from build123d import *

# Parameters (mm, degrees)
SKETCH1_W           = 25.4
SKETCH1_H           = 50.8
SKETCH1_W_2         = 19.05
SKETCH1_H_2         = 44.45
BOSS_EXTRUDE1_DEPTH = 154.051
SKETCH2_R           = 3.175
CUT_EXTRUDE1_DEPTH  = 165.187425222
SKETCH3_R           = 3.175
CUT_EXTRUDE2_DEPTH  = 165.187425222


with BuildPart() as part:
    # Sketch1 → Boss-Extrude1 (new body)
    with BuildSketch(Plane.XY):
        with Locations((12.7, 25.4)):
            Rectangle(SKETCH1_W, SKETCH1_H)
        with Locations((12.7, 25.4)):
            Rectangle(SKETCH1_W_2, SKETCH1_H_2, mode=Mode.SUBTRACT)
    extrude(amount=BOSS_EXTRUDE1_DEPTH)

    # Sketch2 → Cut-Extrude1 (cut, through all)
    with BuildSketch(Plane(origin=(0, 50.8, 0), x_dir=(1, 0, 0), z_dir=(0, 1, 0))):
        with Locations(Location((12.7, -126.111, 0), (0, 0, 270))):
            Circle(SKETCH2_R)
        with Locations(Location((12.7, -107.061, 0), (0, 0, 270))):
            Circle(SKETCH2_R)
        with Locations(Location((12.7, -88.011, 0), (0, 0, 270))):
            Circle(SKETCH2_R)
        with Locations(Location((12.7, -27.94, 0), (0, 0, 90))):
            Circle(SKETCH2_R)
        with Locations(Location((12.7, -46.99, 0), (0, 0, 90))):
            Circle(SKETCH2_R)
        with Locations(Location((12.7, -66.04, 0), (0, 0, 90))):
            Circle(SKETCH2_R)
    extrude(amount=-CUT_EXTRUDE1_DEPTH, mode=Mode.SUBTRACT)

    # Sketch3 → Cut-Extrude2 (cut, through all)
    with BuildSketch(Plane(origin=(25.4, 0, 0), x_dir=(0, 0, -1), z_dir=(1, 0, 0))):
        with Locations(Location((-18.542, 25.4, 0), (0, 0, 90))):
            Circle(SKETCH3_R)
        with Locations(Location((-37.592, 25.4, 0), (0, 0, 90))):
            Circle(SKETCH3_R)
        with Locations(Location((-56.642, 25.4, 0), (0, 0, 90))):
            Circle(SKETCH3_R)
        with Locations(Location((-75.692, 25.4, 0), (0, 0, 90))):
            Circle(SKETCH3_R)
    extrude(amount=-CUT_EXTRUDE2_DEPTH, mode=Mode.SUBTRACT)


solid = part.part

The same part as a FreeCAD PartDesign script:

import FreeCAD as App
import Part
import Sketcher

V = App.Vector
Q = App.Units.Quantity

doc = App.newDocument("Part")
body = doc.addObject("PartDesign::Body", "Body")

# Sketch on XY plane
sketch1 = body.newObject("Sketcher::SketchObject", "Sketch")
sketch1.AttachmentSupport = (doc.getObject("XY_Plane"), [""])
sketch1.MapMode = "FlatFace"
sketch1.addGeometry(Part.LineSegment(V(0, 50.8, 0), V(0, 0, 0)), False)
sketch1.addGeometry(Part.LineSegment(V(0, 0, 0), V(25.4, 0, 0)), False)
sketch1.addGeometry(Part.LineSegment(V(25.4, 0, 0), V(25.4, 50.8, 0)), False)
sketch1.addGeometry(Part.LineSegment(V(25.4, 50.8, 0), V(0, 50.8, 0)), False)
sketch1.addGeometry(Part.LineSegment(V(22.225, 3.175, 0), V(3.175, 3.175, 0)), False)
sketch1.addGeometry(Part.LineSegment(V(3.175, 3.175, 0), V(3.175, 47.625, 0)), False)
sketch1.addGeometry(Part.LineSegment(V(3.175, 47.625, 0), V(22.225, 47.625, 0)), False)
sketch1.addGeometry(Part.LineSegment(V(22.225, 47.625, 0), V(22.225, 3.175, 0)), False)
sketch1.addConstraint(Sketcher.Constraint("Coincident", 0, 2, 1, 1))
sketch1.addConstraint(Sketcher.Constraint("Coincident", 1, 2, 2, 1))
sketch1.addConstraint(Sketcher.Constraint("Coincident", 2, 2, 3, 1))
sketch1.addConstraint(Sketcher.Constraint("Coincident", 3, 2, 0, 1))
sketch1.addConstraint(Sketcher.Constraint("Coincident", 4, 2, 5, 1))
sketch1.addConstraint(Sketcher.Constraint("Coincident", 5, 2, 6, 1))
sketch1.addConstraint(Sketcher.Constraint("Coincident", 6, 2, 7, 1))
sketch1.addConstraint(Sketcher.Constraint("Coincident", 7, 2, 4, 1))
sketch1.addConstraint(Sketcher.Constraint("Vertical", 0))
sketch1.addConstraint(Sketcher.Constraint("Horizontal", 1))
sketch1.addConstraint(Sketcher.Constraint("Vertical", 2))
sketch1.addConstraint(Sketcher.Constraint("Horizontal", 3))
sketch1.addConstraint(Sketcher.Constraint("Horizontal", 4))
sketch1.addConstraint(Sketcher.Constraint("Vertical", 5))
sketch1.addConstraint(Sketcher.Constraint("Horizontal", 6))
sketch1.addConstraint(Sketcher.Constraint("Vertical", 7))
sketch1.addConstraint(Sketcher.Constraint("Coincident", 0, 2, -1, 1))
sketch1.addConstraint(Sketcher.Constraint("DistanceX", 1, 1, 1, 2, Q("1 in")))
sketch1.addConstraint(Sketcher.Constraint("DistanceY", 0, 2, 0, 1, Q("2 in")))
sketch1.addConstraint(Sketcher.Constraint("DistanceX", 4, 2, 4, 1, Q("0.75 in")))
sketch1.addConstraint(Sketcher.Constraint("DistanceY", 5, 1, 5, 2, Q("1.75 in")))
sketch1.addConstraint(Sketcher.Constraint("DistanceX", -1, 1, 4, 2, Q("0.125 in")))
sketch1.addConstraint(Sketcher.Constraint("DistanceY", -1, 1, 4, 2, Q("0.125 in")))
pad1 = body.newObject("PartDesign::Pad", "Pad")
pad1.Profile = sketch1
pad1.Length = Q("6.065 in")

# Sketch on XZ plane
sketch2 = body.newObject("Sketcher::SketchObject", "Sketch001")
sketch2.AttachmentSupport = (doc.getObject("XZ_Plane"), [""])
sketch2.MapMode = "FlatFace"
sketch2.AttachmentOffset = App.Placement(V(0, 0, -2 * 25.4), App.Rotation())
sketch2.addGeometry(Part.Circle(V(12.7, 126.111, 0), V(0, 0, 1), 3.175), False)
sketch2.addGeometry(Part.Circle(V(12.7, 107.061, 0), V(0, 0, 1), 3.175), False)
sketch2.addGeometry(Part.Circle(V(12.7, 88.011, 0), V(0, 0, 1), 3.175), False)
sketch2.addGeometry(Part.Circle(V(12.7, 27.94, 0), V(0, 0, 1), 3.175), False)
sketch2.addGeometry(Part.Circle(V(12.7, 46.99, 0), V(0, 0, 1), 3.175), False)
sketch2.addGeometry(Part.Circle(V(12.7, 66.04, 0), V(0, 0, 1), 3.175), False)
sketch2.addConstraint(Sketcher.Constraint("Equal", 0, 1))
sketch2.addConstraint(Sketcher.Constraint("Equal", 1, 2))
sketch2.addConstraint(Sketcher.Constraint("Equal", 2, 3))
sketch2.addConstraint(Sketcher.Constraint("Equal", 3, 4))
sketch2.addConstraint(Sketcher.Constraint("Equal", 4, 5))
sketch2.addConstraint(Sketcher.Constraint("Vertical", 0, 3, 1, 3))
sketch2.addConstraint(Sketcher.Constraint("Vertical", 1, 3, 2, 3))
sketch2.addConstraint(Sketcher.Constraint("Vertical", 2, 3, 3, 3))
sketch2.addConstraint(Sketcher.Constraint("Vertical", 3, 3, 4, 3))
sketch2.addConstraint(Sketcher.Constraint("Vertical", 4, 3, 5, 3))
sketch2.addConstraint(Sketcher.Constraint("Diameter", 0, Q("0.25 in")))
sketch2.addConstraint(Sketcher.Constraint("DistanceX", -1, 1, 0, 3, Q("0.5 in")))
sketch2.addConstraint(Sketcher.Constraint("DistanceY", -1, 1, 3, 3, Q("1.1 in")))
sketch2.addConstraint(Sketcher.Constraint("DistanceY", -1, 1, 5, 3, Q("2.6 in")))
sketch2.addConstraint(Sketcher.Constraint("DistanceY", 2, 3, 0, 3, Q("1.5 in")))
sketch2.addConstraint(Sketcher.Constraint("DistanceY", -1, 1, 4, 3, Q("1.85 in")))
sketch2.addConstraint(Sketcher.Constraint("DistanceY", 1, 3, 0, 3, Q("0.75 in")))
sketch2.addConstraint(Sketcher.Constraint("DistanceY", -1, 1, 0, 3, Q("4.965 in")))
pocket1 = body.newObject("PartDesign::Pocket", "Pocket")
pocket1.Profile = sketch2
pocket1.Type = "ThroughAll"
pocket1.Reversed = True

# Sketch on YZ plane
sketch3 = body.newObject("Sketcher::SketchObject", "Sketch002")
sketch3.AttachmentSupport = (doc.getObject("YZ_Plane"), [""])
sketch3.MapMode = "FlatFace"
sketch3.AttachmentOffset = App.Placement(V(0, 0, 1 * 25.4), App.Rotation())
sketch3.addGeometry(Part.Circle(V(25.4, 18.542, 0), V(0, 0, 1), 3.175), False)
sketch3.addGeometry(Part.Circle(V(25.4, 37.592, 0), V(0, 0, 1), 3.175), False)
sketch3.addGeometry(Part.Circle(V(25.4, 56.642, 0), V(0, 0, 1), 3.175), False)
sketch3.addGeometry(Part.Circle(V(25.4, 75.692, 0), V(0, 0, 1), 3.175), False)
sketch3.addConstraint(Sketcher.Constraint("Equal", 0, 1))
sketch3.addConstraint(Sketcher.Constraint("Equal", 1, 2))
sketch3.addConstraint(Sketcher.Constraint("Equal", 2, 3))
sketch3.addConstraint(Sketcher.Constraint("Vertical", 0, 3, 1, 3))
sketch3.addConstraint(Sketcher.Constraint("Vertical", 1, 3, 2, 3))
sketch3.addConstraint(Sketcher.Constraint("Vertical", 2, 3, 3, 3))
sketch3.addConstraint(Sketcher.Constraint("Diameter", 0, Q("0.25 in")))
sketch3.addConstraint(Sketcher.Constraint("DistanceX", -1, 1, 0, 3, Q("1 in")))
sketch3.addConstraint(Sketcher.Constraint("DistanceY", 0, 3, 2, 3, Q("1.5 in")))
sketch3.addConstraint(Sketcher.Constraint("DistanceY", 1, 3, 3, 3, Q("1.5 in")))
sketch3.addConstraint(Sketcher.Constraint("DistanceY", -1, 1, 0, 3, Q("0.73 in")))
sketch3.addConstraint(Sketcher.Constraint("DistanceY", -1, 1, 1, 3, Q("1.48 in")))
pocket2 = body.newObject("PartDesign::Pocket", "Pocket001")
pocket2.Profile = sketch3
pocket2.Type = "ThroughAll"

doc.recompute()
